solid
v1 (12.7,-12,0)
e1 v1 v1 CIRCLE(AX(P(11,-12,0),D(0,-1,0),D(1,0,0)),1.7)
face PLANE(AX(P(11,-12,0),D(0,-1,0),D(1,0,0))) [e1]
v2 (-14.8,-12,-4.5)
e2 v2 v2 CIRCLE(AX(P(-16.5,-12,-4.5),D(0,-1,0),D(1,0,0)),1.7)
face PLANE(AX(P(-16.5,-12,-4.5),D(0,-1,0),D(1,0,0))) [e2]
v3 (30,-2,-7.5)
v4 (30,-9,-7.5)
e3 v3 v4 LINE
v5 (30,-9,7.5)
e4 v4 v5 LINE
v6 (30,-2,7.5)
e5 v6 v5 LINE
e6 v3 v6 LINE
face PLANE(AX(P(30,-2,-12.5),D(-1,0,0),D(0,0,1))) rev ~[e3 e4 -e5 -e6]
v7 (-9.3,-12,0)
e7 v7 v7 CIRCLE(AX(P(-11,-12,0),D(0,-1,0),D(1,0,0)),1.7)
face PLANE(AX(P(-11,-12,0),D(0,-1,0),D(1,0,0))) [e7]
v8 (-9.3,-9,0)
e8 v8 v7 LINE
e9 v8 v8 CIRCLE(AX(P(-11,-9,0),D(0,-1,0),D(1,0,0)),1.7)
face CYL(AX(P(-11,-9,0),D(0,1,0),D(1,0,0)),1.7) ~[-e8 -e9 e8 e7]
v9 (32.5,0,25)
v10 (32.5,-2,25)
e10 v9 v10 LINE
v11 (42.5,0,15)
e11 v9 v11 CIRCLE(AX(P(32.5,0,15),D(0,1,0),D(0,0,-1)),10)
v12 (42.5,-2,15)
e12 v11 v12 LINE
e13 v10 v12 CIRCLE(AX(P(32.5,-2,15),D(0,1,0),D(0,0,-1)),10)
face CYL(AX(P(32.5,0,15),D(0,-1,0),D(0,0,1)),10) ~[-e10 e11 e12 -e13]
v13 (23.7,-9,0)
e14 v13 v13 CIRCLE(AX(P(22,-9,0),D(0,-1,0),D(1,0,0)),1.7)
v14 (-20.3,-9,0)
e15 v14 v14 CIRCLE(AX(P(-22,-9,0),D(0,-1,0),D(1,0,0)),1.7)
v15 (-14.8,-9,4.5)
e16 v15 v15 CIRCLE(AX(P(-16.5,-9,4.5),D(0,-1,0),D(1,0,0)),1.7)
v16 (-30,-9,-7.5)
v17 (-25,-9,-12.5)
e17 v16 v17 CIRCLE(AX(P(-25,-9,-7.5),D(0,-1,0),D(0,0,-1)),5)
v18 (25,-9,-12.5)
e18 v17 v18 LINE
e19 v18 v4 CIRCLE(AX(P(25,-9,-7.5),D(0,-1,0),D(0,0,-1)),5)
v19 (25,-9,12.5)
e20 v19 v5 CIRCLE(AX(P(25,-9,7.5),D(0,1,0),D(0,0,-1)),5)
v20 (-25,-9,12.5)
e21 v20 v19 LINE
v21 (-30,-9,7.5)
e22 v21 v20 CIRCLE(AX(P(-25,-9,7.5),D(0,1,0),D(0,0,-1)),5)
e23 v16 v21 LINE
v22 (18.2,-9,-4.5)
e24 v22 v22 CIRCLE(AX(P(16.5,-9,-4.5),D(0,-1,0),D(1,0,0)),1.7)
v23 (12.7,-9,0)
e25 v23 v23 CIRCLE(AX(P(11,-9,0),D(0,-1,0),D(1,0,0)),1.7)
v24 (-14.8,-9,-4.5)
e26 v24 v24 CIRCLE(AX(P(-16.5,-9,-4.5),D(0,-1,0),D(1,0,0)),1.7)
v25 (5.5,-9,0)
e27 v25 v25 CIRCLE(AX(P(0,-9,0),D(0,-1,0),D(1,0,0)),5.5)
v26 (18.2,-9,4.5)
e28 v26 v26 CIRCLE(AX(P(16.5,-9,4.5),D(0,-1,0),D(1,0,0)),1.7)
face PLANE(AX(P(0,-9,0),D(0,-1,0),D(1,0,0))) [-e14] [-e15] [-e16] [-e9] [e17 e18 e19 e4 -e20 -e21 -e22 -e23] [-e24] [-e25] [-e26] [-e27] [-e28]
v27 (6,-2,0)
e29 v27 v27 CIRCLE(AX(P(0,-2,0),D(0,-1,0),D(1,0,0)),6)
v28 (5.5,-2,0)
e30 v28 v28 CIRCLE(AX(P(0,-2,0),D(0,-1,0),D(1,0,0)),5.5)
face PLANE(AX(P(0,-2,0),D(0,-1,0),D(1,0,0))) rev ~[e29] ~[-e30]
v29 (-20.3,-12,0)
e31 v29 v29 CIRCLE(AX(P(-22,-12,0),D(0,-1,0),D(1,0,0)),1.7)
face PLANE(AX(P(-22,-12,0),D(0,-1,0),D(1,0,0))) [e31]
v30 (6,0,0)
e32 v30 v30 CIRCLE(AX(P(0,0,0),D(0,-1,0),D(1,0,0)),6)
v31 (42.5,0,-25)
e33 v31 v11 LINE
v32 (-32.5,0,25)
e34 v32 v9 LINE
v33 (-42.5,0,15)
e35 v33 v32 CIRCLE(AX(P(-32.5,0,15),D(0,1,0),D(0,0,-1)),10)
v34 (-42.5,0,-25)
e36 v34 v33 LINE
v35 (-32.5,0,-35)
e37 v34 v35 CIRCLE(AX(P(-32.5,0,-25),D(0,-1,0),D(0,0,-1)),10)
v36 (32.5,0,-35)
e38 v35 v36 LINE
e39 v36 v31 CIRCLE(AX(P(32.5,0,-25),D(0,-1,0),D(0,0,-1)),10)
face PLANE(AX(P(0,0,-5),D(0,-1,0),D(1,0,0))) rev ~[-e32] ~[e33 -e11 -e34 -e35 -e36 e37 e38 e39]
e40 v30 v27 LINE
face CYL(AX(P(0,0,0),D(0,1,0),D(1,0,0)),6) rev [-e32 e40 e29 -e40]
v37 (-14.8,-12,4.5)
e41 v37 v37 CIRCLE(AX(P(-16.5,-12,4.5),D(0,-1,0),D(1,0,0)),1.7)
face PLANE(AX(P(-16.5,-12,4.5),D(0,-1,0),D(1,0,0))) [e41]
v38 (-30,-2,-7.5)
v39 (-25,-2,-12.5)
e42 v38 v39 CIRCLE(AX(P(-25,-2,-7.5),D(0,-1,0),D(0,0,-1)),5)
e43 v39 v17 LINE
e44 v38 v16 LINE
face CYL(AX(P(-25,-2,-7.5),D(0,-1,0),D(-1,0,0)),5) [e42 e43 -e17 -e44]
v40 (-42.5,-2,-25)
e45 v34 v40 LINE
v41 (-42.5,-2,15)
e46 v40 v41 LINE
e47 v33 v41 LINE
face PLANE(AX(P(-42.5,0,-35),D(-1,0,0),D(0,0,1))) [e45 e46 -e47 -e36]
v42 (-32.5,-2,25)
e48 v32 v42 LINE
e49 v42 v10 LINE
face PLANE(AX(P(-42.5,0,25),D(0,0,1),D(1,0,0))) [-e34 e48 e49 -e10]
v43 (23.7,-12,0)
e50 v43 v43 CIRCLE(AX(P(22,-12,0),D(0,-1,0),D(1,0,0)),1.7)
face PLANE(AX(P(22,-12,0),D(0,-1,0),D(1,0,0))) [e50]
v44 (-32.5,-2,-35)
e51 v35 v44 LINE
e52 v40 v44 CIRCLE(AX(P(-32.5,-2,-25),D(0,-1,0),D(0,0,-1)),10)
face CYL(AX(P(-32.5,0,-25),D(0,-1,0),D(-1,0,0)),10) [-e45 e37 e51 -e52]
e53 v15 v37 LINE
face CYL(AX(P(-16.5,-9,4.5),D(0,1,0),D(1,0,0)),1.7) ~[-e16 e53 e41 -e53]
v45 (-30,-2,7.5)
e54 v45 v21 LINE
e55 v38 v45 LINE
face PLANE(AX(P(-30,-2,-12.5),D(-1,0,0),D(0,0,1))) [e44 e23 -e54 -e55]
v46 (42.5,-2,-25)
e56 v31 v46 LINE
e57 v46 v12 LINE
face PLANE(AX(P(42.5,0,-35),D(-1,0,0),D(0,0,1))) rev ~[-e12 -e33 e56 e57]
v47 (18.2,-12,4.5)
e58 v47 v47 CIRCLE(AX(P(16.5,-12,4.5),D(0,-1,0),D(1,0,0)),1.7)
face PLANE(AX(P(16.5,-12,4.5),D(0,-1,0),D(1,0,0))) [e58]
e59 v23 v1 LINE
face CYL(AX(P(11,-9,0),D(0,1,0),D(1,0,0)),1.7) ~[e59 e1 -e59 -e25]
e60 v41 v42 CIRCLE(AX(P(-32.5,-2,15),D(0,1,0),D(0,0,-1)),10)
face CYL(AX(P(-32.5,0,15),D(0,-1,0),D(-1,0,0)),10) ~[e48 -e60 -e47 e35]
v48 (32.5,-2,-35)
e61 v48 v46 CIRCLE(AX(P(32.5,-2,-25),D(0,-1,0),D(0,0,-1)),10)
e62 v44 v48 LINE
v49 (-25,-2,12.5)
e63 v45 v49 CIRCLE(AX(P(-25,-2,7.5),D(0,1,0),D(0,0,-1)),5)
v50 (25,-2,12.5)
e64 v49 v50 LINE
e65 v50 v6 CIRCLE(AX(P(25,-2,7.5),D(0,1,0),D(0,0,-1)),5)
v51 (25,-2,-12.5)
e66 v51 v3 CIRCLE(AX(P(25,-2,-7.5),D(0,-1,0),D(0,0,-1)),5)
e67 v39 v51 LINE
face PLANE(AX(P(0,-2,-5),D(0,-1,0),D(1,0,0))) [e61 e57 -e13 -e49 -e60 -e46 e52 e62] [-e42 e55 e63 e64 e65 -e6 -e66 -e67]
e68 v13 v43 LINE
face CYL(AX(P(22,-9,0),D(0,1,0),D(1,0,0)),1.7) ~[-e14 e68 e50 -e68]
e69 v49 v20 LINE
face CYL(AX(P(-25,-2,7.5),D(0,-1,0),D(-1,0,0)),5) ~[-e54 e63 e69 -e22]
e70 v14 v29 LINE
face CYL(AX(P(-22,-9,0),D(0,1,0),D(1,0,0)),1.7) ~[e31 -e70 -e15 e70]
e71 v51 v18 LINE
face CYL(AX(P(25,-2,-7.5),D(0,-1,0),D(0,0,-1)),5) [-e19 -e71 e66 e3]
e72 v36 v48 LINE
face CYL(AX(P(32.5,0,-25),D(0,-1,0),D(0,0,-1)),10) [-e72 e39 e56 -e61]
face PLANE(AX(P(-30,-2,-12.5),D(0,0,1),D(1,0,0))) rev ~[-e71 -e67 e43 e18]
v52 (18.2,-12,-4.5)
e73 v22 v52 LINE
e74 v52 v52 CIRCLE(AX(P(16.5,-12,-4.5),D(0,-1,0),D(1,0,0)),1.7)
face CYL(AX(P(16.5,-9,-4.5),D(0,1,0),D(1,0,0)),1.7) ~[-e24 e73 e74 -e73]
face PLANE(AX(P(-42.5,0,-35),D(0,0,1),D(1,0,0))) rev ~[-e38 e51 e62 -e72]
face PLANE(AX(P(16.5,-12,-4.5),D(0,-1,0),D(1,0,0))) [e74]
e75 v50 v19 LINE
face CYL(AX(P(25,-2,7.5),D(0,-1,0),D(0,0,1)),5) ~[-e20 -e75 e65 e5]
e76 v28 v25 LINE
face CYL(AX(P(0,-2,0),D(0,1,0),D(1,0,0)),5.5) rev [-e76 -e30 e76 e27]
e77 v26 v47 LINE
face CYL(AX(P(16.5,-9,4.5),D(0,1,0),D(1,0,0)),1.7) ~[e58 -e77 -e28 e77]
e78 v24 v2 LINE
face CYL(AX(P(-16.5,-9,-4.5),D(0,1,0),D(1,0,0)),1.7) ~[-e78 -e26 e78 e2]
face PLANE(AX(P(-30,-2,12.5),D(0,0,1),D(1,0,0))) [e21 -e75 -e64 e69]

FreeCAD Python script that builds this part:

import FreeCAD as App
import Part
import Sketcher
Q = App.Units.Quantity


def edges_at(feature, points):
    """Names of the edges that pass closest to the given points."""
    edges = feature.Shape.Edges
    near = lambda p: min(range(len(edges)), key=lambda i: edges[i].distToShape(Part.Vertex(*p))[0])
    return sorted({f"Edge{near(p) + 1}" for p in points})


def add_polygon(sketch, points):
    """Adds a closed chain of lines whose ends are joined by coincident constraints."""
    first, n = sketch.GeometryCount, len(points)
    for a, b in zip(points, points[1:] + points[:1]):
        sketch.addGeometry(Part.LineSegment(App.Vector(*a, 0), App.Vector(*b, 0)), False)
    for i in range(n):
        sketch.addConstraint(Sketcher.Constraint("Coincident", first + i, 2, first + (i + 1) % n, 1))

doc = App.newDocument("Part")
body = doc.addObject("PartDesign::Body", "Body")

# Sketch on XZ plane
sketch1 = body.newObject("Sketcher::SketchObject", "Sketch")
sketch1.AttachmentSupport = (doc.getObject("XZ_Plane"), [""])
sketch1.MapMode = "FlatFace"
add_polygon(sketch1, [(-42, 25), (-42, -35), (42, -35), (42, 25)])  # lines 0-3
sketch1.addGeometry(Part.Circle(App.Vector(0, 0, 0), App.Vector(0, 0, 1), 6), False)  # 4
sketch1.addConstraint([
    Sketcher.Constraint("Vertical", 0),
    Sketcher.Constraint("Horizontal", 1),
    Sketcher.Constraint("Vertical", 2),
    Sketcher.Constraint("Horizontal", 3),
    Sketcher.Constraint("Coincident", 4, 3, -1, 1),
    Sketcher.Constraint("Diameter", 4, Q("12 mm")),
    Sketcher.Constraint("DistanceX", 1, 1, 1, 2, Q("85 mm")),
    Sketcher.Constraint("DistanceY", 0, 2, 0, 1, Q("60 mm")),
    Sketcher.Constraint("DistanceY", 0, 2, -1, 1, Q("35 mm")),
    Sketcher.Constraint("DistanceX", 0, 2, -1, 1, Q("42.5 mm")),
])
pad1 = body.newObject("PartDesign::Pad", "Pad")
pad1.Profile = sketch1
pad1.Length = 2

# Sketch on XZ plane
sketch2 = body.newObject("Sketcher::SketchObject", "Sketch001")
sketch2.AttachmentSupport = (doc.getObject("XZ_Plane"), [""])
sketch2.MapMode = "FlatFace"
sketch2.AttachmentOffset = App.Placement(App.Vector(0, 0, 2), App.Rotation())
add_polygon(sketch2, [(-30, 12), (-30, -12), (30, -12), (30, 12)])  # lines 0-3
sketch2.addGeometry(Part.Circle(App.Vector(0, 0, 0), App.Vector(0, 0, 1), 6), False)  # 4
sketch2.addConstraint([
    Sketcher.Constraint("Vertical", 0),
    Sketcher.Constraint("Horizontal", 1),
    Sketcher.Constraint("Vertical", 2),
    Sketcher.Constraint("Horizontal", 3),
    Sketcher.Constraint("Coincident", 4, 3, -1, 1),
    Sketcher.Constraint("Symmetric", 0, 2, 2, 2, -1, 1),
    Sketcher.Constraint("Diameter", 4, Q("11 mm")),
    Sketcher.Constraint("DistanceX", 1, 1, 1, 2, Q("60 mm")),
    Sketcher.Constraint("DistanceY", 0, 2, 0, 1, Q("25 mm")),
])
pad2 = body.newObject("PartDesign::Pad", "Pad001")
pad2.Profile = sketch2
pad2.Length = 7
doc.recompute()

fillet = body.newObject("PartDesign::Fillet", "Fillet")
fillet.Base = (pad2, edges_at(pad2, [
    (30, -5.5, 12.5),
    (30, -5.5, -12.5),
    (-30, -5.5, -12.5),
    (-30, -5.5, 12.5),
]))
fillet.Radius = 5
doc.recompute()

fillet2 = body.newObject("PartDesign::Fillet", "Fillet001")
fillet2.Base = (fillet, edges_at(fillet, [
    (42.5, -1, 25),
    (42.5, -1, -35),
    (-42.5, -1, -35),
    (-42.5, -1, 25),
]))
fillet2.Radius = 10

# Sketch on XZ plane
sketch3 = body.newObject("Sketcher::SketchObject", "Sketch002")
sketch3.AttachmentSupport = (doc.getObject("XZ_Plane"), [""])
sketch3.MapMode = "FlatFace"
sketch3.AttachmentOffset = App.Placement(App.Vector(0, 0, 9), App.Rotation())
sketch3.addGeometry([
    Part.Circle(App.Vector(-11, 0, 0), App.Vector(0, 0, 1), 1.7),  # 0
    Part.Circle(App.Vector(-22, 0, 0), App.Vector(0, 0, 1), 1.7),  # 1
    Part.Circle(App.Vector(11, 0, 0), App.Vector(0, 0, 1), 1.7),  # 2
    Part.Circle(App.Vector(22, 0, 0), App.Vector(0, 0, 1), 1.7),  # 3
    Part.Circle(App.Vector(-16.5, -4.5, 0), App.Vector(0, 0, 1), 1.7),  # 4
    Part.Circle(App.Vector(16.5, -4.5, 0), App.Vector(0, 0, 1), 1.7),  # 5
    Part.Circle(App.Vector(16.5, 4.5, 0), App.Vector(0, 0, 1), 1.7),  # 6
    Part.Circle(App.Vector(-16.5, 4.5, 0), App.Vector(0, 0, 1), 1.7),  # 7
], False)
sketch3.addConstraint([
    Sketcher.Constraint("Equal", 0, 1),
    Sketcher.Constraint("Equal", 1, 2),
    Sketcher.Constraint("Equal", 2, 3),
    Sketcher.Constraint("Equal", 3, 4),
    Sketcher.Constraint("Equal", 4, 5),
    Sketcher.Constraint("Equal", 5, 6),
    Sketcher.Constraint("Equal", 6, 7),
    Sketcher.Constraint("Symmetric", 0, 3, 2, 3, -1, 1),
    Sketcher.Constraint("Symmetric", 1, 3, 3, 3, -1, 1),
    Sketcher.Constraint("Symmetric", 4, 3, 6, 3, -1, 1),
    Sketcher.Constraint("Symmetric", 5, 3, 7, 3, -1, 1),
    Sketcher.Constraint("Symmetric", 4, 3, 5, 3, -2),
    Sketcher.Constraint("PointOnObject", 0, 3, -1),
    Sketcher.Constraint("PointOnObject", 1, 3, -1),
    Sketcher.Constraint("Diameter", 0, Q("3.4 mm")),
    Sketcher.Constraint("DistanceX", 0, 3, -1, 1, Q("11 mm")),
    Sketcher.Constraint("DistanceX", 1, 3, -1, 1, Q("22 mm")),
    Sketcher.Constraint("DistanceX", 4, 3, 5, 3, Q("33 mm")),
    Sketcher.Constraint("DistanceY", 5, 3, 6, 3, Q("9 mm")),
])
pad3 = body.newObject("PartDesign::Pad", "Pad002")
pad3.Profile = sketch3
pad3.Length = 3

doc.recompute()
